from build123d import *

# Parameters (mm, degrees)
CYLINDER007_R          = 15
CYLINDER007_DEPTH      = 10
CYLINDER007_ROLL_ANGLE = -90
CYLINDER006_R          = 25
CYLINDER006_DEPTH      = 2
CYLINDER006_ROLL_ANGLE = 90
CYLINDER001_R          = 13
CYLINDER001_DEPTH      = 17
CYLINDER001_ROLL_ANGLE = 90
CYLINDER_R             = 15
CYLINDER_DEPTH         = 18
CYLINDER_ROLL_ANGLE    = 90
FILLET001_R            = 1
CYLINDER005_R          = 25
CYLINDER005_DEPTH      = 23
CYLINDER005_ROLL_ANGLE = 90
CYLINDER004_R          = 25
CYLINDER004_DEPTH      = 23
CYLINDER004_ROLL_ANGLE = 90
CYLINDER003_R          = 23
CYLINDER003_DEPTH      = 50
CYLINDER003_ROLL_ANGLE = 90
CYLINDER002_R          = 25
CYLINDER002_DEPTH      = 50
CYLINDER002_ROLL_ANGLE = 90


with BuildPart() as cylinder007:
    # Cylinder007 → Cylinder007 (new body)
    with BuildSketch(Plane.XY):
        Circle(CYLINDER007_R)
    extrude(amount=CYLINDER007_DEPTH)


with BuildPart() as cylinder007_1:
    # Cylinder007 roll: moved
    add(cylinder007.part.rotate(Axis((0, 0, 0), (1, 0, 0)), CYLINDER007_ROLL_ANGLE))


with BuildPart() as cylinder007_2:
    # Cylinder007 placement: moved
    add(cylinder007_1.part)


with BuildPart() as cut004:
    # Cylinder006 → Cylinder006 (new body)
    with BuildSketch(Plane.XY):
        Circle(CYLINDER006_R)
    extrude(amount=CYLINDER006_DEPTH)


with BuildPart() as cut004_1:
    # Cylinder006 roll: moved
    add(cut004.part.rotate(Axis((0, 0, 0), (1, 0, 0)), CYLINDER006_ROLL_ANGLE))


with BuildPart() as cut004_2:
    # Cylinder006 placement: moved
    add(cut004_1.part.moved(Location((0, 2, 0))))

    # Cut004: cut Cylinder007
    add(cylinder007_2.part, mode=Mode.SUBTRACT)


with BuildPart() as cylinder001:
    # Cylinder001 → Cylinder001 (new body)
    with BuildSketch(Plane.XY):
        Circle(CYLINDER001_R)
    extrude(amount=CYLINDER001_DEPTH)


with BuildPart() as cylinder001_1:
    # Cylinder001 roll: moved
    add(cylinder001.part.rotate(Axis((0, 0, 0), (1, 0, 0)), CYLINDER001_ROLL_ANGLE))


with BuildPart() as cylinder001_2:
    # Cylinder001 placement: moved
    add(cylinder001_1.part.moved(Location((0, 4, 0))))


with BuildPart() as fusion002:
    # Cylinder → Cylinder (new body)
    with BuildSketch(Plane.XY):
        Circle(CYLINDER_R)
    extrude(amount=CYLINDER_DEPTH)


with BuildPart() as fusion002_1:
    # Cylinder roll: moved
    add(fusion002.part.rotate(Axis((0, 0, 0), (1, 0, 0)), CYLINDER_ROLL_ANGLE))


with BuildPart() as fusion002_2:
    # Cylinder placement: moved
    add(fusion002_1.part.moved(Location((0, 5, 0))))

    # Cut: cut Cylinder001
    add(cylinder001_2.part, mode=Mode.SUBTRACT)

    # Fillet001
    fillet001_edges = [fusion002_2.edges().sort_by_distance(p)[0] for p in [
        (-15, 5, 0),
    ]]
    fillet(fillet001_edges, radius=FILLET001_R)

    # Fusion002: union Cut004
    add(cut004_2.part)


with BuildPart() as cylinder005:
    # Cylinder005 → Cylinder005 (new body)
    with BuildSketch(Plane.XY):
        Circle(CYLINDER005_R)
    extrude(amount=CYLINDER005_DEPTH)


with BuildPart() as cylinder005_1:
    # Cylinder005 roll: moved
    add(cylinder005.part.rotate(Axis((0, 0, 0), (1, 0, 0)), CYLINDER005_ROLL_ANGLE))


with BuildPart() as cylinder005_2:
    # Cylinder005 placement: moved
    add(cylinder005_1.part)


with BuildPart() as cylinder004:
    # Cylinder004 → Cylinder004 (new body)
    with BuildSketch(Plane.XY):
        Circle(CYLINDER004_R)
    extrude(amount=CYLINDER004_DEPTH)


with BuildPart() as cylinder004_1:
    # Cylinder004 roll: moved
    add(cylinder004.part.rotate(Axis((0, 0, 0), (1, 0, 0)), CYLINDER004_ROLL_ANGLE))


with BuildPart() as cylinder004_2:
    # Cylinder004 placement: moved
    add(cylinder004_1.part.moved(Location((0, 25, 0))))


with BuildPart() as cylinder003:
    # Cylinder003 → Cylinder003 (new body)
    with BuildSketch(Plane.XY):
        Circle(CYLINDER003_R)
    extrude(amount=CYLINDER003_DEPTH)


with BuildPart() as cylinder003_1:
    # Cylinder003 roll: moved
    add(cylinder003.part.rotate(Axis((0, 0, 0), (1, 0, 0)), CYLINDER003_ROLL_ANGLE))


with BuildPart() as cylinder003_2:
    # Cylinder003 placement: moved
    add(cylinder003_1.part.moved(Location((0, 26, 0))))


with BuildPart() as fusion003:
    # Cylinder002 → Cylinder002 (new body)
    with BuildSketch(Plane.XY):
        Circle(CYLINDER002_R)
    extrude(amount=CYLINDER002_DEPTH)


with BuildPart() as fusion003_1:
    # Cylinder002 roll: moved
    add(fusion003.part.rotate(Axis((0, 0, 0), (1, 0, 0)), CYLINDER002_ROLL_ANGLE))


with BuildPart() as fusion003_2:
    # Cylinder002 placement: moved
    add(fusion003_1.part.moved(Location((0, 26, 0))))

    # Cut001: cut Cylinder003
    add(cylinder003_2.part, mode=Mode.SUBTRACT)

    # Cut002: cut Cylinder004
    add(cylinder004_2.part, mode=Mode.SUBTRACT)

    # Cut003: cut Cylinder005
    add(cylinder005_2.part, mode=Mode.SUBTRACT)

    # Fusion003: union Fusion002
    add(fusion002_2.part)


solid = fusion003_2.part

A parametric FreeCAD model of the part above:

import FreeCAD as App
import Part
import Sketcher
from FreeCAD import Vector


def edges_at(feature, points):
    """Names of the edges that pass closest to the given points."""
    edges = feature.Shape.Edges
    near = lambda p: min(range(len(edges)), key=lambda i: edges[i].distToShape(Part.Vertex(*p))[0])
    return sorted({f"Edge{near(p) + 1}" for p in points})

doc = App.newDocument("Part")
body = doc.addObject("PartDesign::Body", "Body")

sketch1 = doc.addObject("Sketcher::SketchObject", "Sketch")
body.addObject(sketch1)
sketch1.AttachmentSupport = (doc.XY_Plane, [""])
sketch1.MapMode = "FlatFace"
sketch1.addGeometry(Part.Circle(Vector(0, 0, 0), Vector(0, 0, 1), 15), False)
sketch1.addConstraint(Sketcher.Constraint("Coincident", 0, 3, -1, 1))
sketch1.addConstraint(Sketcher.Constraint("Diameter", 0, 30.0))
pad1 = doc.addObject("PartDesign::Pad", "Pad")
body.addObject(pad1)
pad1.Profile = sketch1
pad1.Length = 10
body2 = doc.addObject("PartDesign::Body", "Body001")
doc.recompute()

body.Placement = App.Placement(Vector(0, 0, 0), App.Rotation(Vector(1, 0, 0), 270))
boolean = doc.addObject("PartDesign::Boolean", "Boolean")
body2.addObject(boolean)
boolean.Type = "Fuse"
boolean.addObjects([body])
body3 = doc.addObject("PartDesign::Body", "Body002")

sketch2 = doc.addObject("Sketcher::SketchObject", "Sketch001")
body3.addObject(sketch2)
sketch2.AttachmentSupport = (doc.getObject("XY_Plane002"), [""])
sketch2.MapMode = "FlatFace"
sketch2.addGeometry(Part.Circle(Vector(0, 0, 0), Vector(0, 0, 1), 25), False)
sketch2.addConstraint(Sketcher.Constraint("Coincident", 0, 3, -1, 1))
sketch2.addConstraint(Sketcher.Constraint("Diameter", 0, 50.0))
pad2 = doc.addObject("PartDesign::Pad", "Pad001")
body3.addObject(pad2)
pad2.Profile = sketch2
pad2.Length = 2
body4 = doc.addObject("PartDesign::Body", "Body003")
doc.recompute()

body3.Placement = App.Placement(Vector(0, 0, 0), App.Rotation(Vector(1, 0, 0), 90))
boolean2 = doc.addObject("PartDesign::Boolean", "Boolean001")
body4.addObject(boolean2)
boolean2.Type = "Fuse"
boolean2.addObjects([body3])
body5 = doc.addObject("PartDesign::Body", "Body004")
doc.recompute()

body4.Placement = App.Placement(Vector(0, 2, 0), App.Rotation(Vector(0, 0, 1), 0))
boolean3 = doc.addObject("PartDesign::Boolean", "Boolean002")
body5.addObject(boolean3)
boolean3.Type = "Fuse"
boolean3.addObjects([body4])
doc.recompute()

boolean4 = doc.addObject("PartDesign::Boolean", "Boolean003")
body5.addObject(boolean4)
boolean4.Type = "Cut"
boolean4.addObjects([body2])
body6 = doc.addObject("PartDesign::Body", "Body005")

sketch3 = doc.addObject("Sketcher::SketchObject", "Sketch002")
body6.addObject(sketch3)
sketch3.AttachmentSupport = (doc.getObject("XY_Plane005"), [""])
sketch3.MapMode = "FlatFace"
sketch3.addGeometry(Part.Circle(Vector(0, 0, 0), Vector(0, 0, 1), 13), False)
sketch3.addConstraint(Sketcher.Constraint("Coincident", 0, 3, -1, 1))
sketch3.addConstraint(Sketcher.Constraint("Diameter", 0, 26.0))
pad3 = doc.addObject("PartDesign::Pad", "Pad002")
body6.addObject(pad3)
pad3.Profile = sketch3
pad3.Length = 17
body7 = doc.addObject("PartDesign::Body", "Body006")
doc.recompute()

body6.Placement = App.Placement(Vector(0, 0, 0), App.Rotation(Vector(1, 0, 0), 90))
boolean5 = doc.addObject("PartDesign::Boolean", "Boolean004")
body7.addObject(boolean5)
boolean5.Type = "Fuse"
boolean5.addObjects([body6])
body8 = doc.addObject("PartDesign::Body", "Body007")
doc.recompute()

body7.Placement = App.Placement(Vector(0, 4, 0), App.Rotation(Vector(0, 0, 1), 0))
boolean6 = doc.addObject("PartDesign::Boolean", "Boolean005")
body8.addObject(boolean6)
boolean6.Type = "Fuse"
boolean6.addObjects([body7])
body9 = doc.addObject("PartDesign::Body", "Body008")

sketch4 = doc.addObject("Sketcher::SketchObject", "Sketch003")
body9.addObject(sketch4)
sketch4.AttachmentSupport = (doc.getObject("XY_Plane008"), [""])
sketch4.MapMode = "FlatFace"
sketch4.addGeometry(Part.Circle(Vector(0, 0, 0), Vector(0, 0, 1), 15), False)
sketch4.addConstraint(Sketcher.Constraint("Coincident", 0, 3, -1, 1))
sketch4.addConstraint(Sketcher.Constraint("Diameter", 0, 30.0))
pad4 = doc.addObject("PartDesign::Pad", "Pad003")
body9.addObject(pad4)
pad4.Profile = sketch4
pad4.Length = 18
body10 = doc.addObject("PartDesign::Body", "Body009")
doc.recompute()

body9.Placement = App.Placement(Vector(0, 0, 0), App.Rotation(Vector(1, 0, 0), 90))
boolean7 = doc.addObject("PartDesign::Boolean", "Boolean006")
body10.addObject(boolean7)
boolean7.Type = "Fuse"
boolean7.addObjects([body9])
body11 = doc.addObject("PartDesign::Body", "Body010")
doc.recompute()

body10.Placement = App.Placement(Vector(0, 5, 0), App.Rotation(Vector(0, 0, 1), 0))
boolean8 = doc.addObject("PartDesign::Boolean", "Boolean007")
body11.addObject(boolean8)
boolean8.Type = "Fuse"
boolean8.addObjects([body10])
doc.recompute()

boolean9 = doc.addObject("PartDesign::Boolean", "Boolean008")
body11.addObject(boolean9)
boolean9.Type = "Cut"
boolean9.addObjects([body8])
doc.recompute()

fillet = doc.addObject("PartDesign::Fillet", "Fillet")
body11.addObject(fillet)
fillet.Base = (boolean9, edges_at(boolean9, [(-15, 5, 0)]))
fillet.Radius = 1
doc.recompute()

boolean10 = doc.addObject("PartDesign::Boolean", "Boolean009")
body11.addObject(boolean10)
boolean10.Type = "Fuse"
boolean10.addObjects([body5])
body12 = doc.addObject("PartDesign::Body", "Body011")

sketch5 = doc.addObject("Sketcher::SketchObject", "Sketch004")
body12.addObject(sketch5)
sketch5.AttachmentSupport = (doc.getObject("XY_Plane011"), [""])
sketch5.MapMode = "FlatFace"
sketch5.addGeometry(Part.Circle(Vector(0, 0, 0), Vector(0, 0, 1), 25), False)
sketch5.addConstraint(Sketcher.Constraint("Coincident", 0, 3, -1, 1))
sketch5.addConstraint(Sketcher.Constraint("Diameter", 0, 50.0))
pad5 = doc.addObject("PartDesign::Pad", "Pad004")
body12.addObject(pad5)
pad5.Profile = sketch5
pad5.Length = 23
body13 = doc.addObject("PartDesign::Body", "Body012")
doc.recompute()

body12.Placement = App.Placement(Vector(0, 0, 0), App.Rotation(Vector(1, 0, 0), 90))
boolean11 = doc.addObject("PartDesign::Boolean", "Boolean010")
body13.addObject(boolean11)
boolean11.Type = "Fuse"
boolean11.addObjects([body12])
body14 = doc.addObject("PartDesign::Body", "Body013")

sketch6 = doc.addObject("Sketcher::SketchObject", "Sketch005")
body14.addObject(sketch6)
sketch6.AttachmentSupport = (doc.getObject("XY_Plane013"), [""])
sketch6.MapMode = "FlatFace"
sketch6.addGeometry(Part.Circle(Vector(0, 0, 0), Vector(0, 0, 1), 25), False)
sketch6.addConstraint(Sketcher.Constraint("Coincident", 0, 3, -1, 1))
sketch6.addConstraint(Sketcher.Constraint("Diameter", 0, 50.0))
pad6 = doc.addObject("PartDesign::Pad", "Pad005")
body14.addObject(pad6)
pad6.Profile = sketch6
pad6.Length = 23
body15 = doc.addObject("PartDesign::Body", "Body014")
doc.recompute()

body14.Placement = App.Placement(Vector(0, 0, 0), App.Rotation(Vector(1, 0, 0), 90))
boolean12 = doc.addObject("PartDesign::Boolean", "Boolean011")
body15.addObject(boolean12)
boolean12.Type = "Fuse"
boolean12.addObjects([body14])
body16 = doc.addObject("PartDesign::Body", "Body015")
doc.recompute()

body15.Placement = App.Placement(Vector(0, 25, 0), App.Rotation(Vector(0, 0, 1), 0))
boolean13 = doc.addObject("PartDesign::Boolean", "Boolean012")
body16.addObject(boolean13)
boolean13.Type = "Fuse"
boolean13.addObjects([body15])
body17 = doc.addObject("PartDesign::Body", "Body016")

sketch7 = doc.addObject("Sketcher::SketchObject", "Sketch006")
body17.addObject(sketch7)
sketch7.AttachmentSupport = (doc.getObject("XY_Plane016"), [""])
sketch7.MapMode = "FlatFace"
sketch7.addGeometry(Part.Circle(Vector(0, 0, 0), Vector(0, 0, 1), 23), False)
sketch7.addConstraint(Sketcher.Constraint("Coincident", 0, 3, -1, 1))
sketch7.addConstraint(Sketcher.Constraint("Diameter", 0, 46.0))
pad7 = doc.addObject("PartDesign::Pad", "Pad006")
body17.addObject(pad7)
pad7.Profile = sketch7
pad7.Length = 50
body18 = doc.addObject("PartDesign::Body", "Body017")
doc.recompute()

body17.Placement = App.Placement(Vector(0, 0, 0), App.Rotation(Vector(1, 0, 0), 90))
boolean14 = doc.addObject("PartDesign::Boolean", "Boolean013")
body18.addObject(boolean14)
boolean14.Type = "Fuse"
boolean14.addObjects([body17])
body19 = doc.addObject("PartDesign::Body", "Body018")
doc.recompute()

body18.Placement = App.Placement(Vector(0, 26, 0), App.Rotation(Vector(0, 0, 1), 0))
boolean15 = doc.addObject("PartDesign::Boolean", "Boolean014")
body19.addObject(boolean15)
boolean15.Type = "Fuse"
boolean15.addObjects([body18])
body20 = doc.addObject("PartDesign::Body", "Body019")

sketch8 = doc.addObject("Sketcher::SketchObject", "Sketch007")
body20.addObject(sketch8)
sketch8.AttachmentSupport = (doc.getObject("XY_Plane019"), [""])
sketch8.MapMode = "FlatFace"
sketch8.addGeometry(Part.Circle(Vector(0, 0, 0), Vector(0, 0, 1), 25), False)
sketch8.addConstraint(Sketcher.Constraint("Coincident", 0, 3, -1, 1))
sketch8.addConstraint(Sketcher.Constraint("Diameter", 0, 50.0))
pad8 = doc.addObject("PartDesign::Pad", "Pad007")
body20.addObject(pad8)
pad8.Profile = sketch8
pad8.Length = 50
body21 = doc.addObject("PartDesign::Body", "Body020")
doc.recompute()

body20.Placement = App.Placement(Vector(0, 0, 0), App.Rotation(Vector(1, 0, 0), 90))
boolean16 = doc.addObject("PartDesign::Boolean", "Boolean015")
body21.addObject(boolean16)
boolean16.Type = "Fuse"
boolean16.addObjects([body20])
body22 = doc.addObject("PartDesign::Body", "Body021")
body22.AllowCompound = True
doc.recompute()

body21.Placement = App.Placement(Vector(0, 26, 0), App.Rotation(Vector(0, 0, 1), 0))
boolean17 = doc.addObject("PartDesign::Boolean", "Boolean016")
body22.addObject(boolean17)
boolean17.Type = "Fuse"
boolean17.addObjects([body21])
doc.recompute()

boolean18 = doc.addObject("PartDesign::Boolean", "Boolean017")
body22.addObject(boolean18)
boolean18.Type = "Cut"
boolean18.addObjects([body19])
doc.recompute()

boolean19 = doc.addObject("PartDesign::Boolean", "Boolean018")
body22.addObject(boolean19)
boolean19.Type = "Cut"
boolean19.addObjects([body16])
doc.recompute()

boolean20 = doc.addObject("PartDesign::Boolean", "Boolean019")
body22.addObject(boolean20)
boolean20.Type = "Cut"
boolean20.addObjects([body13])
doc.recompute()

boolean21 = doc.addObject("PartDesign::Boolean", "Boolean020")
body22.addObject(boolean21)
boolean21.Type = "Fuse"
boolean21.addObjects([body11])

doc.recompute()
